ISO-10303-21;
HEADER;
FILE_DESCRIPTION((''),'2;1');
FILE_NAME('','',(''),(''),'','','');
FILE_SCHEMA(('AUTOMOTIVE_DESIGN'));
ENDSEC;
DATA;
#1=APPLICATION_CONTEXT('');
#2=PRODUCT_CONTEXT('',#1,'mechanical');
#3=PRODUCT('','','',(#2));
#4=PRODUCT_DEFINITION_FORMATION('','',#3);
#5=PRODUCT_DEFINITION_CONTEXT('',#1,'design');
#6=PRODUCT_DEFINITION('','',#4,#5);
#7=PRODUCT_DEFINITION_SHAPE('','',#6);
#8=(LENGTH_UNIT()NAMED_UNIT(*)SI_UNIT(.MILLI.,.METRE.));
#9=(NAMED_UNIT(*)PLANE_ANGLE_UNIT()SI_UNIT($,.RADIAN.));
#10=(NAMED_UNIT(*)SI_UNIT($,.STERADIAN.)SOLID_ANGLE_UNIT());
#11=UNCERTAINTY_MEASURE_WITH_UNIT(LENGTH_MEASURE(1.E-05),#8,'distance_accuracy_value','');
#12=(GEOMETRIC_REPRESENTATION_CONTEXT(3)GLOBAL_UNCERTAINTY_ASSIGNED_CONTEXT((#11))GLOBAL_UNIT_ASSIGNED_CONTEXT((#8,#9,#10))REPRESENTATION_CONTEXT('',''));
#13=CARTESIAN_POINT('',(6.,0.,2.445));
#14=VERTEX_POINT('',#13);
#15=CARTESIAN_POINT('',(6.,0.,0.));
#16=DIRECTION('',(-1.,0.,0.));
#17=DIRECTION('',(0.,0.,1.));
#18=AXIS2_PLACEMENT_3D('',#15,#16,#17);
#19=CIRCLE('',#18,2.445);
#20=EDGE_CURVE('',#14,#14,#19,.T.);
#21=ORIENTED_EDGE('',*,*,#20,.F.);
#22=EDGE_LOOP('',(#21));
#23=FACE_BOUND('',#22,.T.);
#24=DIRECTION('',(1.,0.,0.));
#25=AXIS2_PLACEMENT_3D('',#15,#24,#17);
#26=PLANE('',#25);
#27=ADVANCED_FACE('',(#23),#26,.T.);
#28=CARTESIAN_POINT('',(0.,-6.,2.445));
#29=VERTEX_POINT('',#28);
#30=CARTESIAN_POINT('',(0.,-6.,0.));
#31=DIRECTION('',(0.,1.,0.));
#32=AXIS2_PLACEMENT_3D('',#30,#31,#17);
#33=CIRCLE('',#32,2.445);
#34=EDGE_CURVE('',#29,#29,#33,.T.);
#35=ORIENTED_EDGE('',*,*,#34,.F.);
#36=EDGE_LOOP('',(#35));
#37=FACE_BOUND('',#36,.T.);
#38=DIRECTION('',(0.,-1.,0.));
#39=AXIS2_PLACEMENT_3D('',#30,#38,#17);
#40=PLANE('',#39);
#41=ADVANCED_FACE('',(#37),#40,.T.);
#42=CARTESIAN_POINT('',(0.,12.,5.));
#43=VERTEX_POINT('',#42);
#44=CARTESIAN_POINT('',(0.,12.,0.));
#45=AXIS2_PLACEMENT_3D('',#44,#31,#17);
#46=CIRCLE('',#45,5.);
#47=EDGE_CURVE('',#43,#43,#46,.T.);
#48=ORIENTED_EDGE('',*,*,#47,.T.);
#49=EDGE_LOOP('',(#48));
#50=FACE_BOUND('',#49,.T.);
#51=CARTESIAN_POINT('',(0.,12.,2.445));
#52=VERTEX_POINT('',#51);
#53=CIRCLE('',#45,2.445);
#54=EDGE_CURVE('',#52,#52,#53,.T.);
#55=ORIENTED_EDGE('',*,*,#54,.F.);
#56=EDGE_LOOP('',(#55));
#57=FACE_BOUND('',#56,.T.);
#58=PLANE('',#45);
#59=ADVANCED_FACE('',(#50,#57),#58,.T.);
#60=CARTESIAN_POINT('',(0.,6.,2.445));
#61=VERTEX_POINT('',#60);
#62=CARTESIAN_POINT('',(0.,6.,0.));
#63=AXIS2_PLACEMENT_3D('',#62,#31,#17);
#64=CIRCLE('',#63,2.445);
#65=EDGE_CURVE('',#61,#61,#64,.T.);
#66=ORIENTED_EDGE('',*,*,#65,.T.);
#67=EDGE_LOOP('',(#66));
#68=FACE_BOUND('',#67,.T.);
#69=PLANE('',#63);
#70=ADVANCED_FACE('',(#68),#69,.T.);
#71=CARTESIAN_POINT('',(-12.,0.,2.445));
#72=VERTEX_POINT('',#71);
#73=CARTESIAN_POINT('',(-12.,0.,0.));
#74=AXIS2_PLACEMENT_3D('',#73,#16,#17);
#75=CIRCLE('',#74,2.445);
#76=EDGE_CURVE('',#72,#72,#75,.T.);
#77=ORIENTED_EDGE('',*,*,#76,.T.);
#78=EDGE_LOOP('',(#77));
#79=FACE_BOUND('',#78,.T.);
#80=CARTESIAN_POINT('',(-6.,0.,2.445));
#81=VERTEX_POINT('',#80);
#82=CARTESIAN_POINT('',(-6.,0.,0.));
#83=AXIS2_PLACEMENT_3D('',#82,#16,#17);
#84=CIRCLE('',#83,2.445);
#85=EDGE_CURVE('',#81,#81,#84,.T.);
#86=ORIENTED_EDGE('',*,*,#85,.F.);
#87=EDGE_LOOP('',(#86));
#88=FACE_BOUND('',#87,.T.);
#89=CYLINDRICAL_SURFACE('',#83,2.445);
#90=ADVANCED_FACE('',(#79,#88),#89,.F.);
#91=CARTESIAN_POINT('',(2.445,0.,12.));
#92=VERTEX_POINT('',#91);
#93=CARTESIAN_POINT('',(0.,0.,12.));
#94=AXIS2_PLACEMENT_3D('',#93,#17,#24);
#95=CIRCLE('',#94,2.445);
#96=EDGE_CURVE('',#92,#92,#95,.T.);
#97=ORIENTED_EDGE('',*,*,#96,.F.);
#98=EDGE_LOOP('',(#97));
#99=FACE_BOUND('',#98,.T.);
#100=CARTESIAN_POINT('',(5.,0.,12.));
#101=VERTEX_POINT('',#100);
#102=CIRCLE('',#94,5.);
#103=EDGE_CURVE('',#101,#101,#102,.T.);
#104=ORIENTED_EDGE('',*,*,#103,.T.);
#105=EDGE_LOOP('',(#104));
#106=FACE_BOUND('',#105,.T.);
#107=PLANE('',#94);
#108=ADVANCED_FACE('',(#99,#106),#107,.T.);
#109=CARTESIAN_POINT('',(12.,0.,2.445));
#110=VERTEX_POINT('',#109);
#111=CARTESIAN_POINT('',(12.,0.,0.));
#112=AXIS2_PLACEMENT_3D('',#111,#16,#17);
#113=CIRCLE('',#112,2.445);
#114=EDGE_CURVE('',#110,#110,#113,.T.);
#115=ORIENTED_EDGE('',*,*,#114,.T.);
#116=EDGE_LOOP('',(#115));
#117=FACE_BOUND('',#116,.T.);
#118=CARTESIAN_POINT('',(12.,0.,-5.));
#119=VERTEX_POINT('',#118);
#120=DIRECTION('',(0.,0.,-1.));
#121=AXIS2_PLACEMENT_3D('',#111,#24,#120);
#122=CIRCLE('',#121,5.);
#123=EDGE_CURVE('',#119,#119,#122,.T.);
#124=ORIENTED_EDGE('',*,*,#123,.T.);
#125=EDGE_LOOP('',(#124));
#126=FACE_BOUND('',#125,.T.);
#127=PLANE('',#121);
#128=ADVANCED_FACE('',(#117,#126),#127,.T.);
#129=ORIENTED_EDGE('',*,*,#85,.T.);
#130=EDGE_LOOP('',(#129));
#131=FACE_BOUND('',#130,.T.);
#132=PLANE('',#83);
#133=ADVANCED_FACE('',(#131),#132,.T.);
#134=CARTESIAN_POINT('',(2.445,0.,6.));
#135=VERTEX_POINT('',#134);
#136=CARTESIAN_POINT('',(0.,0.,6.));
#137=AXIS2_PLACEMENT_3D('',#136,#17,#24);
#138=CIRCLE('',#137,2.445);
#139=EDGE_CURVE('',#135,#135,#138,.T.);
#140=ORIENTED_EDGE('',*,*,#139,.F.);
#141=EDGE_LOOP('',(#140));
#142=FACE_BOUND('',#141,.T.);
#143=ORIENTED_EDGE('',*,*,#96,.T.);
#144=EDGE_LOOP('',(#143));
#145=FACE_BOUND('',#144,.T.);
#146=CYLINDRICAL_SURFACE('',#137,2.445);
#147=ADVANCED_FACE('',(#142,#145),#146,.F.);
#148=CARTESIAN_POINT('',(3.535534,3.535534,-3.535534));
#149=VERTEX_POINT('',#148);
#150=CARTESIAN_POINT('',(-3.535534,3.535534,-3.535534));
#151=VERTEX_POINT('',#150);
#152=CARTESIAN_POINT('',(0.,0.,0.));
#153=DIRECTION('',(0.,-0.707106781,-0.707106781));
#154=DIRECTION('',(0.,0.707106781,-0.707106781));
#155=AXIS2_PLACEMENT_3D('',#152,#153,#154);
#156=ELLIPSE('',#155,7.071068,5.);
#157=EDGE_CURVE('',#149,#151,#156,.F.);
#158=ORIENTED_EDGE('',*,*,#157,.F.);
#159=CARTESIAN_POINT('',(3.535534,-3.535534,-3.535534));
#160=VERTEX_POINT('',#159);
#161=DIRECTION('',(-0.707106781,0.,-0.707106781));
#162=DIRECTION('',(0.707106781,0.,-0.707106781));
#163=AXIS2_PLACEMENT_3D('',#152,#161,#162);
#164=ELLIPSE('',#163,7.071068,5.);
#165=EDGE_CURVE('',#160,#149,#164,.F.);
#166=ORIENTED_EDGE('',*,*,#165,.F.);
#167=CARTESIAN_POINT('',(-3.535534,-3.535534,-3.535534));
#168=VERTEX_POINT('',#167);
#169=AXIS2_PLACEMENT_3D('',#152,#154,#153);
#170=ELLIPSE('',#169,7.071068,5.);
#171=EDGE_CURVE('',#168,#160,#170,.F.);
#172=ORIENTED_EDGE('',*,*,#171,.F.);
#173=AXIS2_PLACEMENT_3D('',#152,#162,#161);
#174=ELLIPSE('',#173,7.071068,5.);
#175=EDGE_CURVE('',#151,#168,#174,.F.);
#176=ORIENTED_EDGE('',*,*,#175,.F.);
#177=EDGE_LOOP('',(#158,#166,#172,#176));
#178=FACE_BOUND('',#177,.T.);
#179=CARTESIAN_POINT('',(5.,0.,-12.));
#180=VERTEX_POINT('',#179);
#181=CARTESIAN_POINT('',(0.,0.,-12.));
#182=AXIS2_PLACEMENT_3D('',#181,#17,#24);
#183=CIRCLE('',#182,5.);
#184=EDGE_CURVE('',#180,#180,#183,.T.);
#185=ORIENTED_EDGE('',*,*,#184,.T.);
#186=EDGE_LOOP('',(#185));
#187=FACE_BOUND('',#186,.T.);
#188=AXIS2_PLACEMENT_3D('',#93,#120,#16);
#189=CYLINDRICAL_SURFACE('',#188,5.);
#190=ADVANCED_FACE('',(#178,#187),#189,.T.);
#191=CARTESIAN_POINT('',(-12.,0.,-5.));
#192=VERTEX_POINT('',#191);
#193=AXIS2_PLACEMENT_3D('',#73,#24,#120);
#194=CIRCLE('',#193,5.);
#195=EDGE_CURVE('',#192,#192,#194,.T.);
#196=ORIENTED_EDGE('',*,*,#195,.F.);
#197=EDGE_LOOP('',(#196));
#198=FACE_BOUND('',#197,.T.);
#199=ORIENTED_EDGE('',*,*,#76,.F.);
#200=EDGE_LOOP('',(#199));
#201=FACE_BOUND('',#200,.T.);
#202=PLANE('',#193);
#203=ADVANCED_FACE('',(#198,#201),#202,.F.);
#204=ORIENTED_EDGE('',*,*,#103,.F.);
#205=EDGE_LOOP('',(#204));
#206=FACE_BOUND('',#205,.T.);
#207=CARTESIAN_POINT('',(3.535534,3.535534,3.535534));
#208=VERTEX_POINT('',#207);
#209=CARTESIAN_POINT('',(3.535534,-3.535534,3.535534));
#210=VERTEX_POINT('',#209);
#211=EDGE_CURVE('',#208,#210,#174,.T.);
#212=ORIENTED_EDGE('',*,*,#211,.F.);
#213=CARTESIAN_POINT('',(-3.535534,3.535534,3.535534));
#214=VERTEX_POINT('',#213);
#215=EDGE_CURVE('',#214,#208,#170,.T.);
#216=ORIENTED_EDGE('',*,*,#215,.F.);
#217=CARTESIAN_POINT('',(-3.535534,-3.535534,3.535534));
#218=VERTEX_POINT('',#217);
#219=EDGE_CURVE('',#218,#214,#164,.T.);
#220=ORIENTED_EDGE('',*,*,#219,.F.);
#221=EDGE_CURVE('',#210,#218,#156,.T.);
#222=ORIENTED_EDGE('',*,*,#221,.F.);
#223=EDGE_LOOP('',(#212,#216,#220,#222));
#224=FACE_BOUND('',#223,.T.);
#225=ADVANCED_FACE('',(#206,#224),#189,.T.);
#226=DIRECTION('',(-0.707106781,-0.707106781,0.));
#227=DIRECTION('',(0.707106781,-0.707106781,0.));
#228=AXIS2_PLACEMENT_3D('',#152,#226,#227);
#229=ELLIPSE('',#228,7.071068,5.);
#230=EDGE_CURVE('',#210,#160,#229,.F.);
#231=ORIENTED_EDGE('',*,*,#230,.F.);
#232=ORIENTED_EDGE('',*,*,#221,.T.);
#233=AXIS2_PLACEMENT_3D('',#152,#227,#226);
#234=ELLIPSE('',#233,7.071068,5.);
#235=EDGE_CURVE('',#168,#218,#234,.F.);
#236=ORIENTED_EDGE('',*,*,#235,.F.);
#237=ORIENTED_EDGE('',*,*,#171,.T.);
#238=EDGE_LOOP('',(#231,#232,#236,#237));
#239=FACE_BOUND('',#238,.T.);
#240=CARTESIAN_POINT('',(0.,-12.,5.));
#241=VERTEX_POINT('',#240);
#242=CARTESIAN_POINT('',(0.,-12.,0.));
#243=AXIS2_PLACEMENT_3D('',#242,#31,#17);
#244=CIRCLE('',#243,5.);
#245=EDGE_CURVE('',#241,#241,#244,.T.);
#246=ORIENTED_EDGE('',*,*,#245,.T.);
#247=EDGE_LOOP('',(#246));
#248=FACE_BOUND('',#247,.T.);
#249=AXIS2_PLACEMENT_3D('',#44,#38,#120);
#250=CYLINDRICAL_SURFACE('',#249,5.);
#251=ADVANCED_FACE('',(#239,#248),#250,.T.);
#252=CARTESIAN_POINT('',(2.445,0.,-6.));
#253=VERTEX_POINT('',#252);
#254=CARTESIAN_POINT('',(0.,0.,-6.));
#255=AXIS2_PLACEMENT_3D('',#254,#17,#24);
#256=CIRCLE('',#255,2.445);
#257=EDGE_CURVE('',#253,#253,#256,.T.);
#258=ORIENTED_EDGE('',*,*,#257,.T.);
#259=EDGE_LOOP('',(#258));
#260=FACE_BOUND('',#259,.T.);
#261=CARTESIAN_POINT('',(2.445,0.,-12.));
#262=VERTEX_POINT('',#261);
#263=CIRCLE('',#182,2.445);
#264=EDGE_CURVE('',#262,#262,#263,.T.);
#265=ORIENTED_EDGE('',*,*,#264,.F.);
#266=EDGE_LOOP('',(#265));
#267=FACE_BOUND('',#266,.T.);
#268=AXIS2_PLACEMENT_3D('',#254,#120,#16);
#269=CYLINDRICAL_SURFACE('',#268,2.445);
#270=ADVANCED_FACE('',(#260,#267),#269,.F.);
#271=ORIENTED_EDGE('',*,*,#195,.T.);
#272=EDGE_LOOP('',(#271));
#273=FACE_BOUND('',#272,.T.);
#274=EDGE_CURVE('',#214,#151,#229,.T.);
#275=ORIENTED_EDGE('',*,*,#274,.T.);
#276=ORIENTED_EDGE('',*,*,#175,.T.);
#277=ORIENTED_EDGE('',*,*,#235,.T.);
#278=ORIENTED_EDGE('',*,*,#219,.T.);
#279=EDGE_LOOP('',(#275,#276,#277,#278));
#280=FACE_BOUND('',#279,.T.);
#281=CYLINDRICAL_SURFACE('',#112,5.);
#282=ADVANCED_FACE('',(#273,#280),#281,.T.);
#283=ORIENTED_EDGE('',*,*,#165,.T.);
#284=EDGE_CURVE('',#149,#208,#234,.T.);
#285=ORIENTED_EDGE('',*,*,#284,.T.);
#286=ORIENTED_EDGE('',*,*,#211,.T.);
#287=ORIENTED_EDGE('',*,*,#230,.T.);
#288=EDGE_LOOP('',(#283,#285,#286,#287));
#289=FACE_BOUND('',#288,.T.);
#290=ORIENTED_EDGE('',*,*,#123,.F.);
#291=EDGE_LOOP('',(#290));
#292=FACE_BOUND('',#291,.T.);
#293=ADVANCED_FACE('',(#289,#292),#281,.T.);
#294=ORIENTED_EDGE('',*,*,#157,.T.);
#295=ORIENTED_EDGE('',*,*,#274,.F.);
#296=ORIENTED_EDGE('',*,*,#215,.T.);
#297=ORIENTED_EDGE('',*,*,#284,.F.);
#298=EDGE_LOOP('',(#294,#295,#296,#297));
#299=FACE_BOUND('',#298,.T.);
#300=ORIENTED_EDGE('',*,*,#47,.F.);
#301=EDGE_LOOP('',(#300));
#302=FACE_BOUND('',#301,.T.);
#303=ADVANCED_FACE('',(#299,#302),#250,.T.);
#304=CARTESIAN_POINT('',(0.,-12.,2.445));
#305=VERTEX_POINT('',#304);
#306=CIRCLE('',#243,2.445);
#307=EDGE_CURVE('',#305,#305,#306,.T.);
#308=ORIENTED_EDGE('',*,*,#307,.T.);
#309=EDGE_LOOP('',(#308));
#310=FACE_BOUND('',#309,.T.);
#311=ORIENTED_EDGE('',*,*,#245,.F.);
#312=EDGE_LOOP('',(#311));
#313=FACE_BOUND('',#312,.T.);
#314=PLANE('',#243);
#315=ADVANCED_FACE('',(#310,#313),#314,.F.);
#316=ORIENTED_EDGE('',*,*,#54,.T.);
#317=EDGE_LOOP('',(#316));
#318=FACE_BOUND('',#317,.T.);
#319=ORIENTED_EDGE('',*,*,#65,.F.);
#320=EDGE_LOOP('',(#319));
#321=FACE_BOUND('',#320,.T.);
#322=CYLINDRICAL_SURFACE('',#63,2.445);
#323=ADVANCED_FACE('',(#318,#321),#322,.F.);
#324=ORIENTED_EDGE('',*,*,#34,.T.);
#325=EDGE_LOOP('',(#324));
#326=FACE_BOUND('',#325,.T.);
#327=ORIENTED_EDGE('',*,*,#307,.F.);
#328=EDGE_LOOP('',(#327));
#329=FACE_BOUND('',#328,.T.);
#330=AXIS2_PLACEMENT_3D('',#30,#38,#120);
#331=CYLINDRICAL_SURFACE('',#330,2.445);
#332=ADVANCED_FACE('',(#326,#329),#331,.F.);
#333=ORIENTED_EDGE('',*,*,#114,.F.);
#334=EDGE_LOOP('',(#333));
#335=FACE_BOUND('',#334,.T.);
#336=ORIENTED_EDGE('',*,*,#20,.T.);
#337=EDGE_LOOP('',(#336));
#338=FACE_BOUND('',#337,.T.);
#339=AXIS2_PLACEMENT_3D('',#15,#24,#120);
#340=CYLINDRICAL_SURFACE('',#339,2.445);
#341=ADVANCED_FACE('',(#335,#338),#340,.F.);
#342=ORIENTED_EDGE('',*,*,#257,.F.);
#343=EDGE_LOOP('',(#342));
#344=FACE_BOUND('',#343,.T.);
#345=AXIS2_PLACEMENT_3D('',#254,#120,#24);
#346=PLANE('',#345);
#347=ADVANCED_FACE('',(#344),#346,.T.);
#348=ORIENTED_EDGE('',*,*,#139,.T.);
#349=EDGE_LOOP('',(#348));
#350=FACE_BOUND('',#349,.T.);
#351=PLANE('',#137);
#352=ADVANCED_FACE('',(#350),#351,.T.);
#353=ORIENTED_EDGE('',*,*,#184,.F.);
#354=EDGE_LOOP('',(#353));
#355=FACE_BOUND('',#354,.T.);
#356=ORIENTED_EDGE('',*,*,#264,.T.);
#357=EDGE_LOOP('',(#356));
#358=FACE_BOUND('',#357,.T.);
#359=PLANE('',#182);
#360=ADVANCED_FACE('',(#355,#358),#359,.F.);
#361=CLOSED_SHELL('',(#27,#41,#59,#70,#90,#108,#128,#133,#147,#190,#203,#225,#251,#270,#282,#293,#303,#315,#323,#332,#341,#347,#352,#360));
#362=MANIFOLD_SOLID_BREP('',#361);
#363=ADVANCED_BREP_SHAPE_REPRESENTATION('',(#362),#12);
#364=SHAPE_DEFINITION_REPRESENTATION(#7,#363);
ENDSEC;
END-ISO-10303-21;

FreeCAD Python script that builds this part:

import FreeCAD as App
import Part
import Sketcher
from FreeCAD import Vector

doc = App.newDocument("Part")
params = doc.addObject("Spreadsheet::Sheet", "Params")
for row, (alias, value) in enumerate([
    ("sketch1_diameter", "10 mm"),
    ("pad1_length", "24 mm"),
    ("sketch2_diameter", "10 mm"),
    ("pad2_length", "24 mm"),
    ("sketch3_diameter", "10 mm"),
    ("pad3_length", "24 mm"),
    ("sketch4_diameter", "4.89 mm"),
    ("pocket1_length", "6 mm"),
    ("sketch5_diameter", "4.89 mm"),
    ("pocket2_length", "6 mm"),
    ("sketch6_diameter", "4.89 mm"),
    ("pocket3_length", "6 mm"),
], start=1):
    params.set(f"A{row}", alias)
    params.set(f"B{row}", "=" + value)
    params.setAlias(f"B{row}", alias)

body = doc.addObject("PartDesign::Body", "Body")

# Sketch on XY plane
sketch1 = body.newObject("Sketcher::SketchObject", "Sketch")
sketch1.AttachmentSupport = (doc.getObject("XY_Plane"), [""])
sketch1.MapMode = "FlatFace"
sketch1.addGeometry(Part.Circle(Vector(0, 0, 0), Vector(0, 0, 1), 5), False)
sketch1.addConstraint(Sketcher.Constraint("Coincident", 0, 3, -1, 1))
sketch1.addConstraint(Sketcher.Constraint("Diameter", 0, 10.0))
sketch1.setExpression("Constraints[1]", "Params.sketch1_diameter")
pad1 = body.newObject("PartDesign::Pad", "Pad")
pad1.Profile = sketch1
pad1.setExpression("Length", "Params.pad1_length")
pad1.Midplane = True

# Sketch on XZ plane
sketch2 = body.newObject("Sketcher::SketchObject", "Sketch001")
sketch2.AttachmentSupport = (doc.getObject("XZ_Plane"), [""])
sketch2.MapMode = "FlatFace"
sketch2.addGeometry(Part.Circle(Vector(0, 0, 0), Vector(0, 0, 1), 5), False)
sketch2.addConstraint(Sketcher.Constraint("Coincident", 0, 3, -1, 1))
sketch2.addConstraint(Sketcher.Constraint("Diameter", 0, 10.0))
sketch2.setExpression("Constraints[1]", "Params.sketch2_diameter")
pad2 = body.newObject("PartDesign::Pad", "Pad001")
pad2.Profile = sketch2
pad2.setExpression("Length", "Params.pad2_length")
pad2.Midplane = True

# Sketch on YZ plane
sketch3 = body.newObject("Sketcher::SketchObject", "Sketch002")
sketch3.AttachmentSupport = (doc.getObject("YZ_Plane"), [""])
sketch3.MapMode = "FlatFace"
sketch3.addGeometry(Part.Circle(Vector(0, 0, 0), Vector(0, 0, 1), 5), False)
sketch3.addConstraint(Sketcher.Constraint("Coincident", 0, 3, -1, 1))
sketch3.addConstraint(Sketcher.Constraint("Diameter", 0, 10.0))
sketch3.setExpression("Constraints[1]", "Params.sketch3_diameter")
pad3 = body.newObject("PartDesign::Pad", "Pad002")
pad3.Profile = sketch3
pad3.setExpression("Length", "Params.pad3_length")
pad3.Midplane = True

# Sketch on YZ plane
sketch4 = body.newObject("Sketcher::SketchObject", "Sketch003")
sketch4.AttachmentSupport = (doc.getObject("YZ_Plane"), [""])
sketch4.MapMode = "FlatFace"
sketch4.AttachmentOffset = App.Placement(Vector(0, 0, -12), App.Rotation())
sketch4.addGeometry(Part.Circle(Vector(0, 0, 0), Vector(0, 0, 1), 2.4), False)
sketch4.addConstraint(Sketcher.Constraint("Coincident", 0, 3, -1, 1))
sketch4.addConstraint(Sketcher.Constraint("Diameter", 0, 4.89))
sketch4.setExpression("Constraints[1]", "Params.sketch4_diameter")
pocket1 = body.newObject("PartDesign::Pocket", "Pocket")
pocket1.Profile = sketch4
pocket1.setExpression("Length", "Params.pocket1_length")
pocket1.Reversed = True
doc.recompute()

mirrored = body.newObject("PartDesign::Mirrored", "Mirrored")
mirrored.Originals = [pocket1]
mirrored.MirrorPlane = (doc.getObject("YZ_Plane"), [""])
body.Tip = mirrored

# Sketch on XY plane
sketch5 = body.newObject("Sketcher::SketchObject", "Sketch004")
sketch5.AttachmentSupport = (doc.getObject("XY_Plane"), [""])
sketch5.MapMode = "FlatFace"
sketch5.AttachmentOffset = App.Placement(Vector(0, 0, 12), App.Rotation())
sketch5.addGeometry(Part.Circle(Vector(0, 0, 0), Vector(0, 0, 1), 2.4), False)
sketch5.addConstraint(Sketcher.Constraint("Coincident", 0, 3, -1, 1))
sketch5.addConstraint(Sketcher.Constraint("Diameter", 0, 4.89))
sketch5.setExpression("Constraints[1]", "Params.sketch5_diameter")
pocket2 = body.newObject("PartDesign::Pocket", "Pocket001")
pocket2.Profile = sketch5
pocket2.setExpression("Length", "Params.pocket2_length")
doc.recompute()

mirrored2 = body.newObject("PartDesign::Mirrored", "Mirrored001")
mirrored2.Originals = [pocket2]
mirrored2.MirrorPlane = (doc.getObject("XY_Plane"), [""])
body.Tip = mirrored2

# Sketch on XZ plane
sketch6 = body.newObject("Sketcher::SketchObject", "Sketch005")
sketch6.AttachmentSupport = (doc.getObject("XZ_Plane"), [""])
sketch6.MapMode = "FlatFace"
sketch6.AttachmentOffset = App.Placement(Vector(0, 0, -12), App.Rotation())
sketch6.addGeometry(Part.Circle(Vector(0, 0, 0), Vector(0, 0, 1), 2.4), False)
sketch6.addConstraint(Sketcher.Constraint("Coincident", 0, 3, -1, 1))
sketch6.addConstraint(Sketcher.Constraint("Diameter", 0, 4.89))
sketch6.setExpression("Constraints[1]", "Params.sketch6_diameter")
pocket3 = body.newObject("PartDesign::Pocket", "Pocket002")
pocket3.Profile = sketch6
pocket3.setExpression("Length", "Params.pocket3_length")
pocket3.Reversed = True
doc.recompute()

mirrored3 = body.newObject("PartDesign::Mirrored", "Mirrored002")
mirrored3.Originals = [pocket3]
mirrored3.MirrorPlane = (doc.getObject("XZ_Plane"), [""])
body.Tip = mirrored3

doc.recompute()
